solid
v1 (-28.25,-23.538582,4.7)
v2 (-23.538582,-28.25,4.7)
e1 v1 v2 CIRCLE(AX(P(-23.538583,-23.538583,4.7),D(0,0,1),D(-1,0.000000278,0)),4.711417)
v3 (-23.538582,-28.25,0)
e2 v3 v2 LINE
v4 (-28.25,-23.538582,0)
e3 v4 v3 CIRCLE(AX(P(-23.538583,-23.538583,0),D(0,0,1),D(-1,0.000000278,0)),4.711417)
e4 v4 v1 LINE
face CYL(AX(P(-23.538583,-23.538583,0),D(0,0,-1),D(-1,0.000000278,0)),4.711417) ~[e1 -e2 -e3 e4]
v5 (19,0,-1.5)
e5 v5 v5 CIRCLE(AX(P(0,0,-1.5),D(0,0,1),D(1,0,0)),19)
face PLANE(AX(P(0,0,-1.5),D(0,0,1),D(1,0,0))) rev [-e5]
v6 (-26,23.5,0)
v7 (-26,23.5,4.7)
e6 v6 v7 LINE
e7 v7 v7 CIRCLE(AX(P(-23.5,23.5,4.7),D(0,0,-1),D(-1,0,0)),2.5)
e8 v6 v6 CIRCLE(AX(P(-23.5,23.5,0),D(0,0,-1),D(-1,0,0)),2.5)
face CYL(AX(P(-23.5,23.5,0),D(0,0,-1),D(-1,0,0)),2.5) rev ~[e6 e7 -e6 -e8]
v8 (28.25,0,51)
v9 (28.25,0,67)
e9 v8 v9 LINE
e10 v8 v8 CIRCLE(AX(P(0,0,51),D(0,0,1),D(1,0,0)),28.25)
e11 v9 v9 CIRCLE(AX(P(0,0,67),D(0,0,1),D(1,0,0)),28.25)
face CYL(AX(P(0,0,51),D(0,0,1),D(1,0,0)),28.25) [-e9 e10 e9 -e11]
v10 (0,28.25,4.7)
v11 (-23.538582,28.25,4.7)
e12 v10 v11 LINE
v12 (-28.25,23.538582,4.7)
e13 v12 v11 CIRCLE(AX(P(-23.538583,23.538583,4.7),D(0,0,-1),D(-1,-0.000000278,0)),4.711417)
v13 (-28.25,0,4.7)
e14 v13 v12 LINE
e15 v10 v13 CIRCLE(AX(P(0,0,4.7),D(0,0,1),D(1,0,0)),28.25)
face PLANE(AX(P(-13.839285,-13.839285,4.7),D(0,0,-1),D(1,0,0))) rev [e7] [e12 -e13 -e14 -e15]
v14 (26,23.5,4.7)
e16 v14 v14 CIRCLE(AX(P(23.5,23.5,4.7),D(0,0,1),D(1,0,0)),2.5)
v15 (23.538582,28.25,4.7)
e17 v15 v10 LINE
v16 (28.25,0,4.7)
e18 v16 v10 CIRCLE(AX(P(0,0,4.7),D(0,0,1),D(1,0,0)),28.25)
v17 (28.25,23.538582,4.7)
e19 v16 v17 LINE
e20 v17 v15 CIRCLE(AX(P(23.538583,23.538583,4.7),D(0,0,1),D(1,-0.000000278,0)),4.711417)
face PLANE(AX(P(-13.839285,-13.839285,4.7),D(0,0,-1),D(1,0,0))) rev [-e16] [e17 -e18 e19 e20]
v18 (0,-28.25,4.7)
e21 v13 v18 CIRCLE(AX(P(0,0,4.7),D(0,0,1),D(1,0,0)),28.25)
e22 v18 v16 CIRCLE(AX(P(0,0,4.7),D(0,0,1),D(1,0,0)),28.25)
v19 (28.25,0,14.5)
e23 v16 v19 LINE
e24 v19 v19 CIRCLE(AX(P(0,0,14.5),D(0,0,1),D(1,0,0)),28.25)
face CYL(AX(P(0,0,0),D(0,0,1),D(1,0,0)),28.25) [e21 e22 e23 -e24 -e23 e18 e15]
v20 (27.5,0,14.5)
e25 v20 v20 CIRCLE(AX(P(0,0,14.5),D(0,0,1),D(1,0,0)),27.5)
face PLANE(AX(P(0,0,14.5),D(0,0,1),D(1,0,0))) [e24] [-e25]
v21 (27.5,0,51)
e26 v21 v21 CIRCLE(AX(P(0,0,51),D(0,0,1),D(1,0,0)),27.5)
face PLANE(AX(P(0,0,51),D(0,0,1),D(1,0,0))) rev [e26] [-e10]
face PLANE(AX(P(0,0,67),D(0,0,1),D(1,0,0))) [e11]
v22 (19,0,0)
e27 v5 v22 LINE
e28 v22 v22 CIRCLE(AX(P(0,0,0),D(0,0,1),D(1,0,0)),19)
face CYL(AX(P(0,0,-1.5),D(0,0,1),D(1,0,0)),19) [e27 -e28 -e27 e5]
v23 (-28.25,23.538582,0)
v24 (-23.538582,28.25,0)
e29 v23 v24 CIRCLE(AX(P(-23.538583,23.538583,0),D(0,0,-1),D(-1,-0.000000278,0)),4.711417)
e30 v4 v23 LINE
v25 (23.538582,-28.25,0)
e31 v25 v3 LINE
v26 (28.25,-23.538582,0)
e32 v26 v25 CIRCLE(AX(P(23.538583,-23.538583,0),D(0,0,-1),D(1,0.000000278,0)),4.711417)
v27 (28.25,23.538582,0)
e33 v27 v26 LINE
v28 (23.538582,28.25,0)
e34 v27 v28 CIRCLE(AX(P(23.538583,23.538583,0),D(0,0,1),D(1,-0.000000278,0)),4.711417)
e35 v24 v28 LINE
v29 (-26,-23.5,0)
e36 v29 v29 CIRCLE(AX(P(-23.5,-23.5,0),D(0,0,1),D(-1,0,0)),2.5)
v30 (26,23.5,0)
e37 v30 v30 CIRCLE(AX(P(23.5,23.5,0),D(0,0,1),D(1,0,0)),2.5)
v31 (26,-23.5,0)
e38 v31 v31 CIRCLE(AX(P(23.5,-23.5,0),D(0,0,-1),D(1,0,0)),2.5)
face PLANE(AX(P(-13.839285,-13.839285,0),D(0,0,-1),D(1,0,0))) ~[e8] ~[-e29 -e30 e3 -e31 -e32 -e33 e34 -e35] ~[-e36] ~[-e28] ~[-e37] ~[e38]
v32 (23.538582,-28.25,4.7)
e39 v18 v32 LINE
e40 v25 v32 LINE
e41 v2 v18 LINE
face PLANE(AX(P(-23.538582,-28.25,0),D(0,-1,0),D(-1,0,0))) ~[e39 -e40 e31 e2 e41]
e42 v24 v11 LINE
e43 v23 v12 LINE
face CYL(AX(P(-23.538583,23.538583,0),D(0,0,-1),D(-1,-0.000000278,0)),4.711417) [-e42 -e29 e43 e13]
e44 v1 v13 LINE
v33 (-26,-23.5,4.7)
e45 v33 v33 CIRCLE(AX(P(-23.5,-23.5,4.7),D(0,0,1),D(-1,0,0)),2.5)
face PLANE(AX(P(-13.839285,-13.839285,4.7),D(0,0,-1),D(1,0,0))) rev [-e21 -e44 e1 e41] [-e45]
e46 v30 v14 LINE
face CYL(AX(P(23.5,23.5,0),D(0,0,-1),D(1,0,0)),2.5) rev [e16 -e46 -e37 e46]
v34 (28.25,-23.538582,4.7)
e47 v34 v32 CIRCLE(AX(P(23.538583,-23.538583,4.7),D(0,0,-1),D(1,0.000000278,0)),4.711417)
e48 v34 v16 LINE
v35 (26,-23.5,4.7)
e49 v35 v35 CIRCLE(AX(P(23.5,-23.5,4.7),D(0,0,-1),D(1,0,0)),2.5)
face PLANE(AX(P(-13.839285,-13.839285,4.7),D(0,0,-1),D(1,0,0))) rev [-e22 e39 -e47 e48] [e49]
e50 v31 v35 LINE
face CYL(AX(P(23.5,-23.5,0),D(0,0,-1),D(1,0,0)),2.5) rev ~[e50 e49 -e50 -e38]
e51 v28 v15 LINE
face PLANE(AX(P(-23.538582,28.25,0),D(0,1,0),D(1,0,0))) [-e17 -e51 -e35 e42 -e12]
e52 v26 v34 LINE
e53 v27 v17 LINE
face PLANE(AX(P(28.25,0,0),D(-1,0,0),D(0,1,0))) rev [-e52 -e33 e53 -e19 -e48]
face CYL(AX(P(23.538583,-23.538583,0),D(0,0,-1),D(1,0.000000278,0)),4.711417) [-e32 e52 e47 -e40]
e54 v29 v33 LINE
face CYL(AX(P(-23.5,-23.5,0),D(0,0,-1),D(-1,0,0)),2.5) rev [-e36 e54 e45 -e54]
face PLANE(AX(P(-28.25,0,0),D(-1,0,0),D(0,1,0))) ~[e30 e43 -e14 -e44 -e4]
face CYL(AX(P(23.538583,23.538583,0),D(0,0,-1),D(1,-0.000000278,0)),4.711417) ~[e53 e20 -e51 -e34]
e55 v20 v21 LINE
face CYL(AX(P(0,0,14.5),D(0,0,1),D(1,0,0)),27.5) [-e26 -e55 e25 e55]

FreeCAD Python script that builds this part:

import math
import FreeCAD as App
import Part
import Sketcher


def add_polygon(sketch, points):
    """Adds a closed chain of lines whose ends are joined by coincident constraints."""
    first, n = sketch.GeometryCount, len(points)
    for a, b in zip(points, points[1:] + points[:1]):
        sketch.addGeometry(Part.LineSegment(App.Vector(*a, 0), App.Vector(*b, 0)), False)
    for i in range(n):
        sketch.addConstraint(Sketcher.Constraint("Coincident", first + i, 2, first + (i + 1) % n, 1))

doc = App.newDocument("Part")
body = doc.addObject("PartDesign::Body", "Body")

# Sketch on XY plane
sketch1 = doc.addObject("Sketcher::SketchObject", "Sketch")
body.addObject(sketch1)
sketch1.AttachmentSupport = (doc.XY_Plane, [""])
sketch1.MapMode = "FlatFace"
sketch1.addGeometry(Part.LineSegment(App.Vector(0, 0, 0), App.Vector(28.2, 0, 0)), False)
sketch1.addGeometry(Part.LineSegment(App.Vector(28.2, 0, 0), App.Vector(28.2, 23.5, 0)), False)
sketch1.addGeometry(Part.ArcOfCircle(Part.Circle(App.Vector(23.5, 23.5, 0), App.Vector(0, 0, 1), 4.7), math.radians(0), math.radians(90)), False)
sketch1.addGeometry(Part.LineSegment(App.Vector(23.5, 28.2, 0), App.Vector(0, 28.2, 0)), False)
sketch1.addGeometry(Part.LineSegment(App.Vector(0, 28.2, 0), App.Vector(0, 0, 0)), False)
sketch1.addGeometry(Part.Circle(App.Vector(23.5, 23.5, 0), App.Vector(0, 0, 1), 2.5), False)
sketch1.addConstraint(Sketcher.Constraint("Coincident", 0, 2, 1, 1))
sketch1.addConstraint(Sketcher.Constraint("Tangent", 1, 2, 2, 1))
sketch1.addConstraint(Sketcher.Constraint("Tangent", 2, 2, 3, 1))
sketch1.addConstraint(Sketcher.Constraint("Coincident", 3, 2, 4, 1))
sketch1.addConstraint(Sketcher.Constraint("Coincident", 4, 2, 0, 1))
sketch1.addConstraint(Sketcher.Constraint("Horizontal", 0))
sketch1.addConstraint(Sketcher.Constraint("Vertical", 1))
sketch1.addConstraint(Sketcher.Constraint("Horizontal", 3))
sketch1.addConstraint(Sketcher.Constraint("Vertical", 4))
sketch1.addConstraint(Sketcher.Constraint("Coincident", 4, 2, -1, 1))
sketch1.addConstraint(Sketcher.Constraint("Equal", 3, 1))
sketch1.addConstraint(Sketcher.Constraint("Diameter", 5, 5.0))
sketch1.addConstraint(Sketcher.Constraint("DistanceX", 0, 1, 0, 2, 28.25))
sketch1.addConstraint(Sketcher.Constraint("DistanceX", -1, 1, 5, 3, 23.5))
sketch1.addConstraint(Sketcher.Constraint("DistanceY", -1, 1, 5, 3, 23.5))
sketch1.addConstraint(Sketcher.Constraint("Radius", 2, 4.711417))
pad1 = doc.addObject("PartDesign::Pad", "Pad")
body.addObject(pad1)
pad1.Profile = sketch1
pad1.Length = 4.7

# Sketch on XY plane
sketch2 = doc.addObject("Sketcher::SketchObject", "Sketch001")
body.addObject(sketch2)
sketch2.AttachmentSupport = (doc.XY_Plane, [""])
sketch2.MapMode = "FlatFace"
sketch2.addGeometry(Part.LineSegment(App.Vector(0, 0, 0), App.Vector(-28.2, 0, 0)), False)
sketch2.addGeometry(Part.LineSegment(App.Vector(-28.2, 0, 0), App.Vector(-28.2, 23.5, 0)), False)
sketch2.addGeometry(Part.ArcOfCircle(Part.Circle(App.Vector(-23.5, 23.5, 0), App.Vector(0, 0, 1), 4.7), math.radians(90), math.radians(180)), False)
sketch2.addGeometry(Part.LineSegment(App.Vector(-23.5, 28.2, 0), App.Vector(0, 28.2, 0)), False)
sketch2.addGeometry(Part.LineSegment(App.Vector(0, 28.2, 0), App.Vector(0, 0, 0)), False)
sketch2.addGeometry(Part.Circle(App.Vector(-23.5, 23.5, 0), App.Vector(0, 0, 1), 2.5), False)
sketch2.addConstraint(Sketcher.Constraint("Coincident", 0, 2, 1, 1))
sketch2.addConstraint(Sketcher.Constraint("Tangent", 1, 2, 2, 2))
sketch2.addConstraint(Sketcher.Constraint("Tangent", 2, 1, 3, 1))
sketch2.addConstraint(Sketcher.Constraint("Coincident", 3, 2, 4, 1))
sketch2.addConstraint(Sketcher.Constraint("Coincident", 4, 2, 0, 1))
sketch2.addConstraint(Sketcher.Constraint("Horizontal", 0))
sketch2.addConstraint(Sketcher.Constraint("Vertical", 1))
sketch2.addConstraint(Sketcher.Constraint("Horizontal", 3))
sketch2.addConstraint(Sketcher.Constraint("Vertical", 4))
sketch2.addConstraint(Sketcher.Constraint("Coincident", 4, 2, -1, 1))
sketch2.addConstraint(Sketcher.Constraint("Equal", 3, 1))
sketch2.addConstraint(Sketcher.Constraint("Diameter", 5, 5.0))
sketch2.addConstraint(Sketcher.Constraint("DistanceX", 0, 2, 0, 1, 28.25))
sketch2.addConstraint(Sketcher.Constraint("DistanceX", 5, 3, -1, 1, 23.5))
sketch2.addConstraint(Sketcher.Constraint("DistanceY", -1, 1, 5, 3, 23.5))
sketch2.addConstraint(Sketcher.Constraint("Radius", 2, 4.711417))
pad2 = doc.addObject("PartDesign::Pad", "Pad001")
body.addObject(pad2)
pad2.Profile = sketch2
pad2.Length = 4.7
doc.recompute()

mirrored = doc.addObject("PartDesign::Mirrored", "Mirrored")
body.addObject(mirrored)
mirrored.Originals = [pad1, pad2]
mirrored.MirrorPlane = (doc.XZ_Plane, [""])
body.Tip = mirrored

# Sketch on XZ plane
sketch3 = doc.addObject("Sketcher::SketchObject", "Sketch002")
body.addObject(sketch3)
sketch3.AttachmentSupport = (doc.XZ_Plane, [""])
sketch3.MapMode = "FlatFace"
add_polygon(sketch3, [(19, 0), (28.2, 0), (28.2, 14.5), (27.5, 14.5), (27.5, 51), (28.2, 51), (28.2, 67), (0, 67), (0, -1.5), (19, -1.5)])  # lines 0-9
sketch3.addConstraint(Sketcher.Constraint("Horizontal", 0))
sketch3.addConstraint(Sketcher.Constraint("Vertical", 1))
sketch3.addConstraint(Sketcher.Constraint("Horizontal", 2))
sketch3.addConstraint(Sketcher.Constraint("Vertical", 3))
sketch3.addConstraint(Sketcher.Constraint("Horizontal", 4))
sketch3.addConstraint(Sketcher.Constraint("Vertical", 5))
sketch3.addConstraint(Sketcher.Constraint("Horizontal", 6))
sketch3.addConstraint(Sketcher.Constraint("Vertical", 7))
sketch3.addConstraint(Sketcher.Constraint("Horizontal", 8))
sketch3.addConstraint(Sketcher.Constraint("Vertical", 9))
sketch3.addConstraint(Sketcher.Constraint("PointOnObject", 0, 2, -1))
sketch3.addConstraint(Sketcher.Constraint("PointOnObject", 6, 2, -2))
sketch3.addConstraint(Sketcher.Constraint("Vertical", 1, 2, 4, 2))
sketch3.addConstraint(Sketcher.Constraint("DistanceX", 8, 1, 8, 2, 19.0))
sketch3.addConstraint(Sketcher.Constraint("DistanceY", 5, 1, 5, 2, 16.0))
sketch3.addConstraint(Sketcher.Constraint("DistanceY", 1, 1, 1, 2, 14.5))
sketch3.addConstraint(Sketcher.Constraint("DistanceY", 3, 1, 3, 2, 36.5))
sketch3.addConstraint(Sketcher.Constraint("DistanceY", 7, 2, 7, 1, 68.5))
sketch3.addConstraint(Sketcher.Constraint("DistanceX", 0, 1, 0, 2, 9.25))
sketch3.addConstraint(Sketcher.Constraint("DistanceX", 2, 2, 2, 1, 0.75))
revolution = doc.addObject("PartDesign::Revolution", "Revolution")
body.addObject(revolution)
revolution.Profile = sketch3
revolution.ReferenceAxis = (sketch3, ["V_Axis"])
revolution.Angle = 360

doc.recompute()
